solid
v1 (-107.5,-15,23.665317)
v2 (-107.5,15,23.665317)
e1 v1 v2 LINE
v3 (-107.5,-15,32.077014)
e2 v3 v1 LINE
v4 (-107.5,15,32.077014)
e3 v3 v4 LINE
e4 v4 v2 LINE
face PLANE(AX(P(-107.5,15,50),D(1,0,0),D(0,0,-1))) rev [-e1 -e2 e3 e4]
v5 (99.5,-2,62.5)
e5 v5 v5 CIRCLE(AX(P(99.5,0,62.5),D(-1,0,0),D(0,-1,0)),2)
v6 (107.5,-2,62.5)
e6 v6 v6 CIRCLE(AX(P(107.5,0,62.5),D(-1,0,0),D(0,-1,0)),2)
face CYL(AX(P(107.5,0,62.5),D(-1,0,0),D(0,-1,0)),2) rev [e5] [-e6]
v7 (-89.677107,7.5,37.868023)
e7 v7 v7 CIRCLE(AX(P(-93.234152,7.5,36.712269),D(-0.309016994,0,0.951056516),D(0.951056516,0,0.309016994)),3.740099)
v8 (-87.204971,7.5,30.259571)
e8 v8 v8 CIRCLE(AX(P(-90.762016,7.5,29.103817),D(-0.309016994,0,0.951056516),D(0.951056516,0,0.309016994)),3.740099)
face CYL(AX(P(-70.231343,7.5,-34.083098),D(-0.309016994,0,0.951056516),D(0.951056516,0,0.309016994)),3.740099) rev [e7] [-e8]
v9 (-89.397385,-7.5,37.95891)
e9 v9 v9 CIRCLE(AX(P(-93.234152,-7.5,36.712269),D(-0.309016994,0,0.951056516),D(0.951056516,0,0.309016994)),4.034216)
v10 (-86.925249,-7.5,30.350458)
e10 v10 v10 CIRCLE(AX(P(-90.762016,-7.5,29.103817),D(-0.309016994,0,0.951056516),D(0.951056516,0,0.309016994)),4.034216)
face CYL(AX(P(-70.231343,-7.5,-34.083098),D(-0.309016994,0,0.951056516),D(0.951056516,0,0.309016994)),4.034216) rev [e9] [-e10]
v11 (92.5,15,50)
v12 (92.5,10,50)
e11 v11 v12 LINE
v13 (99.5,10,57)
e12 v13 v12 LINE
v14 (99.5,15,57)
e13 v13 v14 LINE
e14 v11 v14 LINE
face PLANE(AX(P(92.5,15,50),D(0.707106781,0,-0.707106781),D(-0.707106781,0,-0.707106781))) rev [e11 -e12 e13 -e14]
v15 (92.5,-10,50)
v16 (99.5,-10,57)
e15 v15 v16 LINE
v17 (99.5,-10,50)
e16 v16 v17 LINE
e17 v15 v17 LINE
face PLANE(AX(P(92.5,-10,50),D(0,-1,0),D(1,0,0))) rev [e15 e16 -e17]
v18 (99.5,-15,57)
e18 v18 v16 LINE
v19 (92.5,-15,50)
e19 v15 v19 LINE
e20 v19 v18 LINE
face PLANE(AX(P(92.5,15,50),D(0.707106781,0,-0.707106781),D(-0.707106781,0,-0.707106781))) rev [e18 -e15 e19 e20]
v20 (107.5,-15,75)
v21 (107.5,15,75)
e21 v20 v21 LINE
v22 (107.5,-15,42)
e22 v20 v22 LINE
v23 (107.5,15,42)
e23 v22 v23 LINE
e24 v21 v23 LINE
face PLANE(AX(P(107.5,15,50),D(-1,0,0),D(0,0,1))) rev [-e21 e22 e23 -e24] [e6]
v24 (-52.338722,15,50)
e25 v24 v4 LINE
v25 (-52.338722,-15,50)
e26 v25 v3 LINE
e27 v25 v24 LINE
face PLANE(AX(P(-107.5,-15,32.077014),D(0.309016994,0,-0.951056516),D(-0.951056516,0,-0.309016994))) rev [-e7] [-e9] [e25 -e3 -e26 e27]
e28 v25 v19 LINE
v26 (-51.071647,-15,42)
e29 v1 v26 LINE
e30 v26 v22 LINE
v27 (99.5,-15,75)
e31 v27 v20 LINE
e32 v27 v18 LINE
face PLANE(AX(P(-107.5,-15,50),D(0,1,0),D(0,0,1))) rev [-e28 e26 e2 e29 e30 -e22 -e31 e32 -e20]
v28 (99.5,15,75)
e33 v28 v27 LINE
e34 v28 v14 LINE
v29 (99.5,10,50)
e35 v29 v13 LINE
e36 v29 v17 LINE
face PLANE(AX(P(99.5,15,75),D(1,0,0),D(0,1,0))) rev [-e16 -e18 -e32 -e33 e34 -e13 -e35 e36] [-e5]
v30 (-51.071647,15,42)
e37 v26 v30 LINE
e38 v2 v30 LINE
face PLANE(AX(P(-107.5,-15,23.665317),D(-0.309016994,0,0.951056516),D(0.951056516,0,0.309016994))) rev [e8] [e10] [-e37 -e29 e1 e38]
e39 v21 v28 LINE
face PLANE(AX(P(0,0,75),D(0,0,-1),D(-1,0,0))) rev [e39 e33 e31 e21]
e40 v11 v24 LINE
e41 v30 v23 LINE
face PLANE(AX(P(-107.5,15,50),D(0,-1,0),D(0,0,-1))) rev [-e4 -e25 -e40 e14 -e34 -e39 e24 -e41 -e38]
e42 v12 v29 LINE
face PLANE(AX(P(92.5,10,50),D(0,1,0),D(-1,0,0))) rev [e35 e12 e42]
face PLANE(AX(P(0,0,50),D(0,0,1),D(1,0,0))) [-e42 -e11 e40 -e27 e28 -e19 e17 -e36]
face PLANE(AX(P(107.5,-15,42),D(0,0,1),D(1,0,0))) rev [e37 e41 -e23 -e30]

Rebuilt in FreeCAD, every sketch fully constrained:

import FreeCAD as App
import Part
import Sketcher
Q = App.Units.Quantity

doc = App.newDocument("Part")
params = doc.addObject("Spreadsheet::Sheet", "Params")
for row, (alias, value) in enumerate([
    ("sketch1_width", "215 mm"),
    ("sketch1_height", "30 mm"),
    ("pad1_length", "50 mm"),
    ("sketch2_length", "58 mm"),
    ("sketch3_width", "215 mm"),
    ("sketch3_height", "42 mm"),
    ("sketch4_width", "8 mm"),
    ("sketch4_height", "30 mm"),
    ("pad2_length", "25 mm"),
    ("sketch5_width", "5 mm"),
    ("sketch5_height", "7 mm"),
    ("pad3_length", "7 mm"),
    ("sketch6_width", "7 mm"),
    ("sketch7_diameter", "4 mm"),
], start=1):
    params.set(f"A{row}", alias)
    params.set(f"B{row}", "=" + value)
    params.setAlias(f"B{row}", alias)

body = doc.addObject("PartDesign::Body", "Body")

sketch1 = body.newObject("Sketcher::SketchObject", "Sketch")
sketch1.AttachmentSupport = (doc.getObject("XY_Plane"), [""])
sketch1.MapMode = "FlatFace"
sketch1.addGeometry([
    Part.LineSegment(App.Vector(-108, 15, 0), App.Vector(-108, -15, 0)),
    Part.LineSegment(App.Vector(-108, -15, 0), App.Vector(108, -15, 0)),
    Part.LineSegment(App.Vector(108, -15, 0), App.Vector(108, 15, 0)),
    Part.LineSegment(App.Vector(108, 15, 0), App.Vector(-108, 15, 0)),
], False)
sketch1.addConstraint([
    Sketcher.Constraint("Coincident", 0, 2, 1, 1),
    Sketcher.Constraint("Coincident", 1, 2, 2, 1),
    Sketcher.Constraint("Coincident", 2, 2, 3, 1),
    Sketcher.Constraint("Coincident", 3, 2, 0, 1),
    Sketcher.Constraint("Vertical", 0),
    Sketcher.Constraint("Horizontal", 1),
    Sketcher.Constraint("Vertical", 2),
    Sketcher.Constraint("Horizontal", 3),
    Sketcher.Constraint("Symmetric", 0, 2, 2, 2, -1, 1),
    Sketcher.Constraint("DistanceX", 1, 1, 1, 2, 215.0),
    Sketcher.Constraint("DistanceY", 0, 2, 0, 1, 30.0),
])
sketch1.setExpression("Constraints[9]", "Params.sketch1_width")
sketch1.setExpression("Constraints[10]", "Params.sketch1_height")
pad1 = body.newObject("PartDesign::Pad", "Pad")
pad1.Profile = sketch1
pad1.setExpression("Length", "Params.pad1_length")

sketch2 = body.newObject("Sketcher::SketchObject", "Sketch001")
sketch2.AttachmentSupport = (doc.getObject("XZ_Plane"), [""])
sketch2.MapMode = "FlatFace"
sketch2.AttachmentOffset = App.Placement(App.Vector(0, 0, -15), App.Rotation())
sketch2.addGeometry([
    Part.LineSegment(App.Vector(-52, 50, 0), App.Vector(-108, 32, 0)),
    Part.LineSegment(App.Vector(-108, 32, 0), App.Vector(-108, 50, 0)),
    Part.LineSegment(App.Vector(-108, 50, 0), App.Vector(-52, 50, 0)),
], False)
sketch2.addConstraint([
    Sketcher.Constraint("Coincident", 0, 2, 1, 1),
    Sketcher.Constraint("Coincident", 1, 2, 2, 1),
    Sketcher.Constraint("Coincident", 2, 2, 0, 1),
    Sketcher.Constraint("Vertical", 1),
    Sketcher.Constraint("Horizontal", 2),
    Sketcher.Constraint("Angle", 0, Q("-162 deg")),
    Sketcher.Constraint("Distance", 0, 58.0),
    Sketcher.Constraint("DistanceY", -1, 1, 1, 2, 50.0),
    Sketcher.Constraint("DistanceX", 0, 2, -1, 1, 107.5),
])
sketch2.setExpression("Constraints[6]", "Params.sketch2_length")
pocket1 = body.newObject("PartDesign::Pocket", "Pocket")
pocket1.Profile = sketch2
pocket1.Type = "ThroughAll"
pocket1.Reversed = True

sketch3 = body.newObject("Sketcher::SketchObject", "Sketch002")
sketch3.AttachmentSupport = (doc.getObject("XZ_Plane"), [""])
sketch3.MapMode = "FlatFace"
sketch3.AttachmentOffset = App.Placement(App.Vector(0, 0, -15), App.Rotation())
sketch3.addGeometry([
    Part.LineSegment(App.Vector(-51, 42, 0), App.Vector(108, 42, 0)),
    Part.LineSegment(App.Vector(108, 42, 0), App.Vector(108, 0, 0)),
    Part.LineSegment(App.Vector(108, 0, 0), App.Vector(-108, 0, 0)),
    Part.LineSegment(App.Vector(-108, 0, 0), App.Vector(-108, 24, 0)),
    Part.LineSegment(App.Vector(-108, 24, 0), App.Vector(-51, 42, 0)),
], False)
sketch3.addConstraint([
    Sketcher.Constraint("Coincident", 0, 2, 1, 1),
    Sketcher.Constraint("Coincident", 1, 2, 2, 1),
    Sketcher.Constraint("Coincident", 2, 2, 3, 1),
    Sketcher.Constraint("Coincident", 3, 2, 4, 1),
    Sketcher.Constraint("Coincident", 4, 2, 0, 1),
    Sketcher.Constraint("Horizontal", 0),
    Sketcher.Constraint("Vertical", 1),
    Sketcher.Constraint("Horizontal", 2),
    Sketcher.Constraint("Vertical", 3),
    Sketcher.Constraint("Symmetric", 1, 2, 2, 2, -1, 1),
    Sketcher.Constraint("DistanceX", 2, 2, 2, 1, 215.0),
    Sketcher.Constraint("DistanceY", 1, 2, 1, 1, 42.0),
    Sketcher.Constraint("Angle", 4, Q("18 deg")),
    Sketcher.Constraint("DistanceX", 0, 1, 0, 2, 158.571647),
])
sketch3.setExpression("Constraints[10]", "Params.sketch3_width")
sketch3.setExpression("Constraints[11]", "Params.sketch3_height")
pocket2 = body.newObject("PartDesign::Pocket", "Pocket001")
pocket2.Profile = sketch3
pocket2.Type = "ThroughAll"
pocket2.Reversed = True

sketch4 = body.newObject("Sketcher::SketchObject", "Sketch003")
sketch4.AttachmentSupport = (doc.getObject("XY_Plane"), [""])
sketch4.MapMode = "FlatFace"
sketch4.AttachmentOffset = App.Placement(App.Vector(0, 0, 50), App.Rotation())
sketch4.addGeometry([
    Part.LineSegment(App.Vector(100, 15, 0), App.Vector(100, -15, 0)),
    Part.LineSegment(App.Vector(100, -15, 0), App.Vector(108, -15, 0)),
    Part.LineSegment(App.Vector(108, -15, 0), App.Vector(108, 15, 0)),
    Part.LineSegment(App.Vector(108, 15, 0), App.Vector(100, 15, 0)),
], False)
sketch4.addConstraint([
    Sketcher.Constraint("Coincident", 0, 2, 1, 1),
    Sketcher.Constraint("Coincident", 1, 2, 2, 1),
    Sketcher.Constraint("Coincident", 2, 2, 3, 1),
    Sketcher.Constraint("Coincident", 3, 2, 0, 1),
    Sketcher.Constraint("Vertical", 0),
    Sketcher.Constraint("Horizontal", 1),
    Sketcher.Constraint("Vertical", 2),
    Sketcher.Constraint("Horizontal", 3),
    Sketcher.Constraint("DistanceX", 1, 1, 1, 2, 8.0),
    Sketcher.Constraint("DistanceY", 0, 2, 0, 1, 30.0),
    Sketcher.Constraint("DistanceY", 0, 2, -1, 1, 15.0),
    Sketcher.Constraint("DistanceX", -1, 1, 0, 2, 99.5),
])
sketch4.setExpression("Constraints[8]", "Params.sketch4_width")
sketch4.setExpression("Constraints[9]", "Params.sketch4_height")
pad2 = body.newObject("PartDesign::Pad", "Pad001")
pad2.Profile = sketch4
pad2.setExpression("Length", "Params.pad2_length")

sketch5 = body.newObject("Sketcher::SketchObject", "Sketch004")
sketch5.AttachmentSupport = (doc.getObject("YZ_Plane"), [""])
sketch5.MapMode = "FlatFace"
sketch5.AttachmentOffset = App.Placement(App.Vector(0, 0, 99.5), App.Rotation())
sketch5.addGeometry([
    Part.LineSegment(App.Vector(-10, 50, 0), App.Vector(-15, 50, 0)),
    Part.LineSegment(App.Vector(-15, 50, 0), App.Vector(-15, 57, 0)),
    Part.LineSegment(App.Vector(-15, 57, 0), App.Vector(-10, 57, 0)),
    Part.LineSegment(App.Vector(-10, 57, 0), App.Vector(-10, 50, 0)),
    Part.LineSegment(App.Vector(15, 50, 0), App.Vector(10, 50, 0)),
    Part.LineSegment(App.Vector(10, 50, 0), App.Vector(10, 57, 0)),
    Part.LineSegment(App.Vector(10, 57, 0), App.Vector(15, 57, 0)),
    Part.LineSegment(App.Vector(15, 57, 0), App.Vector(15, 50, 0)),
], False)
sketch5.addConstraint([
    Sketcher.Constraint("Coincident", 0, 2, 1, 1),
    Sketcher.Constraint("Coincident", 1, 2, 2, 1),
    Sketcher.Constraint("Coincident", 2, 2, 3, 1),
    Sketcher.Constraint("Coincident", 3, 2, 0, 1),
    Sketcher.Constraint("Coincident", 4, 2, 5, 1),
    Sketcher.Constraint("Coincident", 5, 2, 6, 1),
    Sketcher.Constraint("Coincident", 6, 2, 7, 1),
    Sketcher.Constraint("Coincident", 7, 2, 4, 1),
    Sketcher.Constraint("Horizontal", 0),
    Sketcher.Constraint("Vertical", 1),
    Sketcher.Constraint("Horizontal", 2),
    Sketcher.Constraint("Vertical", 3),
    Sketcher.Constraint("Horizontal", 4),
    Sketcher.Constraint("Vertical", 5),
    Sketcher.Constraint("Horizontal", 6),
    Sketcher.Constraint("Vertical", 7),
    Sketcher.Constraint("Symmetric", 3, 2, 4, 2, -2),
    Sketcher.Constraint("Symmetric", 1, 2, 6, 2, -2),
    Sketcher.Constraint("DistanceX", 0, 2, 0, 1, 5.0),
    Sketcher.Constraint("DistanceY", 1, 1, 1, 2, 7.0),
    Sketcher.Constraint("DistanceX", 0, 2, -1, 1, 15.0),
    Sketcher.Constraint("DistanceY", -1, 1, 0, 2, 50.0),
])
sketch5.setExpression("Constraints[18]", "Params.sketch5_width")
sketch5.setExpression("Constraints[19]", "Params.sketch5_height")
pad3 = body.newObject("PartDesign::Pad", "Pad002")
pad3.Profile = sketch5
pad3.setExpression("Length", "Params.pad3_length")
pad3.Reversed = True

sketch6 = body.newObject("Sketcher::SketchObject", "Sketch005")
sketch6.AttachmentSupport = (doc.getObject("XZ_Plane"), [""])
sketch6.MapMode = "FlatFace"
sketch6.AttachmentOffset = App.Placement(App.Vector(0, 0, 15), App.Rotation())
sketch6.addGeometry([
    Part.LineSegment(App.Vector(92, 50, 0), App.Vector(100, 57, 0)),
    Part.LineSegment(App.Vector(100, 57, 0), App.Vector(92, 57, 0)),
    Part.LineSegment(App.Vector(92, 57, 0), App.Vector(92, 50, 0)),
], False)
sketch6.addConstraint([
    Sketcher.Constraint("Coincident", 0, 2, 1, 1),
    Sketcher.Constraint("Coincident", 1, 2, 2, 1),
    Sketcher.Constraint("Coincident", 2, 2, 0, 1),
    Sketcher.Constraint("Horizontal", 1),
    Sketcher.Constraint("Vertical", 2),
    Sketcher.Constraint("Equal", 1, 2),
    Sketcher.Constraint("DistanceX", 1, 2, 1, 1, 7.0),
    Sketcher.Constraint("DistanceY", -1, 1, 0, 2, 57.0),
    Sketcher.Constraint("DistanceX", -1, 1, 0, 2, 99.5),
])
sketch6.setExpression("Constraints[6]", "Params.sketch6_width")
pocket3 = body.newObject("PartDesign::Pocket", "Pocket002")
pocket3.Profile = sketch6
pocket3.Type = "ThroughAll"

sketch7 = body.newObject("Sketcher::SketchObject", "Sketch006")
sketch7.AttachmentSupport = (doc.getObject("YZ_Plane"), [""])
sketch7.MapMode = "FlatFace"
sketch7.AttachmentOffset = App.Placement(App.Vector(0, 0, 99.5), App.Rotation())
sketch7.addGeometry(Part.Circle(App.Vector(0, 62.5, 0), App.Vector(0, 0, 1), 2), False)
sketch7.addConstraint([
    Sketcher.Constraint("PointOnObject", 0, 3, -2),
    Sketcher.Constraint("Diameter", 0, 4.0),
    Sketcher.Constraint("DistanceY", -1, 1, 0, 3, 62.5),
])
sketch7.setExpression("Constraints[1]", "Params.sketch7_diameter")
pocket4 = body.newObject("PartDesign::Pocket", "Pocket003")
pocket4.Profile = sketch7
pocket4.Type = "ThroughAll"
pocket4.Reversed = True

sketch8 = body.newObject("Sketcher::SketchObject", "Sketch007")
sketch8.Placement = App.Placement(App.Vector(-19.692535, 0, 60.607389), App.Rotation(App.Vector(0.951056516, 0, 0.309016994), App.Vector(0, 0.999999999, 0), App.Vector(-0.309016994, 0, 0.951056516), "ZXY"))
sketch8.addGeometry([
    Part.Circle(App.Vector(-77.3, 7.5, 0), App.Vector(0, 0, 1), 3.7),
    Part.Circle(App.Vector(-77.3, -7.5, 0), App.Vector(0, 0, 1), 4),
], False)
sketch8.addConstraint([
    Sketcher.Constraint("Symmetric", 0, 3, 1, 3, -1),
    Sketcher.Constraint("DistanceY", 1, 3, 0, 3, 15.0),
    Sketcher.Constraint("Diameter", 0, 7.480198),
    Sketcher.Constraint("Diameter", 1, 8.068432),
    Sketcher.Constraint("DistanceX", 0, 3, -1, 1, 77.326233),
])
pocket5 = body.newObject("PartDesign::Pocket", "Pocket004")
pocket5.Profile = sketch8
pocket5.Type = "ThroughAll"

doc.recompute()
